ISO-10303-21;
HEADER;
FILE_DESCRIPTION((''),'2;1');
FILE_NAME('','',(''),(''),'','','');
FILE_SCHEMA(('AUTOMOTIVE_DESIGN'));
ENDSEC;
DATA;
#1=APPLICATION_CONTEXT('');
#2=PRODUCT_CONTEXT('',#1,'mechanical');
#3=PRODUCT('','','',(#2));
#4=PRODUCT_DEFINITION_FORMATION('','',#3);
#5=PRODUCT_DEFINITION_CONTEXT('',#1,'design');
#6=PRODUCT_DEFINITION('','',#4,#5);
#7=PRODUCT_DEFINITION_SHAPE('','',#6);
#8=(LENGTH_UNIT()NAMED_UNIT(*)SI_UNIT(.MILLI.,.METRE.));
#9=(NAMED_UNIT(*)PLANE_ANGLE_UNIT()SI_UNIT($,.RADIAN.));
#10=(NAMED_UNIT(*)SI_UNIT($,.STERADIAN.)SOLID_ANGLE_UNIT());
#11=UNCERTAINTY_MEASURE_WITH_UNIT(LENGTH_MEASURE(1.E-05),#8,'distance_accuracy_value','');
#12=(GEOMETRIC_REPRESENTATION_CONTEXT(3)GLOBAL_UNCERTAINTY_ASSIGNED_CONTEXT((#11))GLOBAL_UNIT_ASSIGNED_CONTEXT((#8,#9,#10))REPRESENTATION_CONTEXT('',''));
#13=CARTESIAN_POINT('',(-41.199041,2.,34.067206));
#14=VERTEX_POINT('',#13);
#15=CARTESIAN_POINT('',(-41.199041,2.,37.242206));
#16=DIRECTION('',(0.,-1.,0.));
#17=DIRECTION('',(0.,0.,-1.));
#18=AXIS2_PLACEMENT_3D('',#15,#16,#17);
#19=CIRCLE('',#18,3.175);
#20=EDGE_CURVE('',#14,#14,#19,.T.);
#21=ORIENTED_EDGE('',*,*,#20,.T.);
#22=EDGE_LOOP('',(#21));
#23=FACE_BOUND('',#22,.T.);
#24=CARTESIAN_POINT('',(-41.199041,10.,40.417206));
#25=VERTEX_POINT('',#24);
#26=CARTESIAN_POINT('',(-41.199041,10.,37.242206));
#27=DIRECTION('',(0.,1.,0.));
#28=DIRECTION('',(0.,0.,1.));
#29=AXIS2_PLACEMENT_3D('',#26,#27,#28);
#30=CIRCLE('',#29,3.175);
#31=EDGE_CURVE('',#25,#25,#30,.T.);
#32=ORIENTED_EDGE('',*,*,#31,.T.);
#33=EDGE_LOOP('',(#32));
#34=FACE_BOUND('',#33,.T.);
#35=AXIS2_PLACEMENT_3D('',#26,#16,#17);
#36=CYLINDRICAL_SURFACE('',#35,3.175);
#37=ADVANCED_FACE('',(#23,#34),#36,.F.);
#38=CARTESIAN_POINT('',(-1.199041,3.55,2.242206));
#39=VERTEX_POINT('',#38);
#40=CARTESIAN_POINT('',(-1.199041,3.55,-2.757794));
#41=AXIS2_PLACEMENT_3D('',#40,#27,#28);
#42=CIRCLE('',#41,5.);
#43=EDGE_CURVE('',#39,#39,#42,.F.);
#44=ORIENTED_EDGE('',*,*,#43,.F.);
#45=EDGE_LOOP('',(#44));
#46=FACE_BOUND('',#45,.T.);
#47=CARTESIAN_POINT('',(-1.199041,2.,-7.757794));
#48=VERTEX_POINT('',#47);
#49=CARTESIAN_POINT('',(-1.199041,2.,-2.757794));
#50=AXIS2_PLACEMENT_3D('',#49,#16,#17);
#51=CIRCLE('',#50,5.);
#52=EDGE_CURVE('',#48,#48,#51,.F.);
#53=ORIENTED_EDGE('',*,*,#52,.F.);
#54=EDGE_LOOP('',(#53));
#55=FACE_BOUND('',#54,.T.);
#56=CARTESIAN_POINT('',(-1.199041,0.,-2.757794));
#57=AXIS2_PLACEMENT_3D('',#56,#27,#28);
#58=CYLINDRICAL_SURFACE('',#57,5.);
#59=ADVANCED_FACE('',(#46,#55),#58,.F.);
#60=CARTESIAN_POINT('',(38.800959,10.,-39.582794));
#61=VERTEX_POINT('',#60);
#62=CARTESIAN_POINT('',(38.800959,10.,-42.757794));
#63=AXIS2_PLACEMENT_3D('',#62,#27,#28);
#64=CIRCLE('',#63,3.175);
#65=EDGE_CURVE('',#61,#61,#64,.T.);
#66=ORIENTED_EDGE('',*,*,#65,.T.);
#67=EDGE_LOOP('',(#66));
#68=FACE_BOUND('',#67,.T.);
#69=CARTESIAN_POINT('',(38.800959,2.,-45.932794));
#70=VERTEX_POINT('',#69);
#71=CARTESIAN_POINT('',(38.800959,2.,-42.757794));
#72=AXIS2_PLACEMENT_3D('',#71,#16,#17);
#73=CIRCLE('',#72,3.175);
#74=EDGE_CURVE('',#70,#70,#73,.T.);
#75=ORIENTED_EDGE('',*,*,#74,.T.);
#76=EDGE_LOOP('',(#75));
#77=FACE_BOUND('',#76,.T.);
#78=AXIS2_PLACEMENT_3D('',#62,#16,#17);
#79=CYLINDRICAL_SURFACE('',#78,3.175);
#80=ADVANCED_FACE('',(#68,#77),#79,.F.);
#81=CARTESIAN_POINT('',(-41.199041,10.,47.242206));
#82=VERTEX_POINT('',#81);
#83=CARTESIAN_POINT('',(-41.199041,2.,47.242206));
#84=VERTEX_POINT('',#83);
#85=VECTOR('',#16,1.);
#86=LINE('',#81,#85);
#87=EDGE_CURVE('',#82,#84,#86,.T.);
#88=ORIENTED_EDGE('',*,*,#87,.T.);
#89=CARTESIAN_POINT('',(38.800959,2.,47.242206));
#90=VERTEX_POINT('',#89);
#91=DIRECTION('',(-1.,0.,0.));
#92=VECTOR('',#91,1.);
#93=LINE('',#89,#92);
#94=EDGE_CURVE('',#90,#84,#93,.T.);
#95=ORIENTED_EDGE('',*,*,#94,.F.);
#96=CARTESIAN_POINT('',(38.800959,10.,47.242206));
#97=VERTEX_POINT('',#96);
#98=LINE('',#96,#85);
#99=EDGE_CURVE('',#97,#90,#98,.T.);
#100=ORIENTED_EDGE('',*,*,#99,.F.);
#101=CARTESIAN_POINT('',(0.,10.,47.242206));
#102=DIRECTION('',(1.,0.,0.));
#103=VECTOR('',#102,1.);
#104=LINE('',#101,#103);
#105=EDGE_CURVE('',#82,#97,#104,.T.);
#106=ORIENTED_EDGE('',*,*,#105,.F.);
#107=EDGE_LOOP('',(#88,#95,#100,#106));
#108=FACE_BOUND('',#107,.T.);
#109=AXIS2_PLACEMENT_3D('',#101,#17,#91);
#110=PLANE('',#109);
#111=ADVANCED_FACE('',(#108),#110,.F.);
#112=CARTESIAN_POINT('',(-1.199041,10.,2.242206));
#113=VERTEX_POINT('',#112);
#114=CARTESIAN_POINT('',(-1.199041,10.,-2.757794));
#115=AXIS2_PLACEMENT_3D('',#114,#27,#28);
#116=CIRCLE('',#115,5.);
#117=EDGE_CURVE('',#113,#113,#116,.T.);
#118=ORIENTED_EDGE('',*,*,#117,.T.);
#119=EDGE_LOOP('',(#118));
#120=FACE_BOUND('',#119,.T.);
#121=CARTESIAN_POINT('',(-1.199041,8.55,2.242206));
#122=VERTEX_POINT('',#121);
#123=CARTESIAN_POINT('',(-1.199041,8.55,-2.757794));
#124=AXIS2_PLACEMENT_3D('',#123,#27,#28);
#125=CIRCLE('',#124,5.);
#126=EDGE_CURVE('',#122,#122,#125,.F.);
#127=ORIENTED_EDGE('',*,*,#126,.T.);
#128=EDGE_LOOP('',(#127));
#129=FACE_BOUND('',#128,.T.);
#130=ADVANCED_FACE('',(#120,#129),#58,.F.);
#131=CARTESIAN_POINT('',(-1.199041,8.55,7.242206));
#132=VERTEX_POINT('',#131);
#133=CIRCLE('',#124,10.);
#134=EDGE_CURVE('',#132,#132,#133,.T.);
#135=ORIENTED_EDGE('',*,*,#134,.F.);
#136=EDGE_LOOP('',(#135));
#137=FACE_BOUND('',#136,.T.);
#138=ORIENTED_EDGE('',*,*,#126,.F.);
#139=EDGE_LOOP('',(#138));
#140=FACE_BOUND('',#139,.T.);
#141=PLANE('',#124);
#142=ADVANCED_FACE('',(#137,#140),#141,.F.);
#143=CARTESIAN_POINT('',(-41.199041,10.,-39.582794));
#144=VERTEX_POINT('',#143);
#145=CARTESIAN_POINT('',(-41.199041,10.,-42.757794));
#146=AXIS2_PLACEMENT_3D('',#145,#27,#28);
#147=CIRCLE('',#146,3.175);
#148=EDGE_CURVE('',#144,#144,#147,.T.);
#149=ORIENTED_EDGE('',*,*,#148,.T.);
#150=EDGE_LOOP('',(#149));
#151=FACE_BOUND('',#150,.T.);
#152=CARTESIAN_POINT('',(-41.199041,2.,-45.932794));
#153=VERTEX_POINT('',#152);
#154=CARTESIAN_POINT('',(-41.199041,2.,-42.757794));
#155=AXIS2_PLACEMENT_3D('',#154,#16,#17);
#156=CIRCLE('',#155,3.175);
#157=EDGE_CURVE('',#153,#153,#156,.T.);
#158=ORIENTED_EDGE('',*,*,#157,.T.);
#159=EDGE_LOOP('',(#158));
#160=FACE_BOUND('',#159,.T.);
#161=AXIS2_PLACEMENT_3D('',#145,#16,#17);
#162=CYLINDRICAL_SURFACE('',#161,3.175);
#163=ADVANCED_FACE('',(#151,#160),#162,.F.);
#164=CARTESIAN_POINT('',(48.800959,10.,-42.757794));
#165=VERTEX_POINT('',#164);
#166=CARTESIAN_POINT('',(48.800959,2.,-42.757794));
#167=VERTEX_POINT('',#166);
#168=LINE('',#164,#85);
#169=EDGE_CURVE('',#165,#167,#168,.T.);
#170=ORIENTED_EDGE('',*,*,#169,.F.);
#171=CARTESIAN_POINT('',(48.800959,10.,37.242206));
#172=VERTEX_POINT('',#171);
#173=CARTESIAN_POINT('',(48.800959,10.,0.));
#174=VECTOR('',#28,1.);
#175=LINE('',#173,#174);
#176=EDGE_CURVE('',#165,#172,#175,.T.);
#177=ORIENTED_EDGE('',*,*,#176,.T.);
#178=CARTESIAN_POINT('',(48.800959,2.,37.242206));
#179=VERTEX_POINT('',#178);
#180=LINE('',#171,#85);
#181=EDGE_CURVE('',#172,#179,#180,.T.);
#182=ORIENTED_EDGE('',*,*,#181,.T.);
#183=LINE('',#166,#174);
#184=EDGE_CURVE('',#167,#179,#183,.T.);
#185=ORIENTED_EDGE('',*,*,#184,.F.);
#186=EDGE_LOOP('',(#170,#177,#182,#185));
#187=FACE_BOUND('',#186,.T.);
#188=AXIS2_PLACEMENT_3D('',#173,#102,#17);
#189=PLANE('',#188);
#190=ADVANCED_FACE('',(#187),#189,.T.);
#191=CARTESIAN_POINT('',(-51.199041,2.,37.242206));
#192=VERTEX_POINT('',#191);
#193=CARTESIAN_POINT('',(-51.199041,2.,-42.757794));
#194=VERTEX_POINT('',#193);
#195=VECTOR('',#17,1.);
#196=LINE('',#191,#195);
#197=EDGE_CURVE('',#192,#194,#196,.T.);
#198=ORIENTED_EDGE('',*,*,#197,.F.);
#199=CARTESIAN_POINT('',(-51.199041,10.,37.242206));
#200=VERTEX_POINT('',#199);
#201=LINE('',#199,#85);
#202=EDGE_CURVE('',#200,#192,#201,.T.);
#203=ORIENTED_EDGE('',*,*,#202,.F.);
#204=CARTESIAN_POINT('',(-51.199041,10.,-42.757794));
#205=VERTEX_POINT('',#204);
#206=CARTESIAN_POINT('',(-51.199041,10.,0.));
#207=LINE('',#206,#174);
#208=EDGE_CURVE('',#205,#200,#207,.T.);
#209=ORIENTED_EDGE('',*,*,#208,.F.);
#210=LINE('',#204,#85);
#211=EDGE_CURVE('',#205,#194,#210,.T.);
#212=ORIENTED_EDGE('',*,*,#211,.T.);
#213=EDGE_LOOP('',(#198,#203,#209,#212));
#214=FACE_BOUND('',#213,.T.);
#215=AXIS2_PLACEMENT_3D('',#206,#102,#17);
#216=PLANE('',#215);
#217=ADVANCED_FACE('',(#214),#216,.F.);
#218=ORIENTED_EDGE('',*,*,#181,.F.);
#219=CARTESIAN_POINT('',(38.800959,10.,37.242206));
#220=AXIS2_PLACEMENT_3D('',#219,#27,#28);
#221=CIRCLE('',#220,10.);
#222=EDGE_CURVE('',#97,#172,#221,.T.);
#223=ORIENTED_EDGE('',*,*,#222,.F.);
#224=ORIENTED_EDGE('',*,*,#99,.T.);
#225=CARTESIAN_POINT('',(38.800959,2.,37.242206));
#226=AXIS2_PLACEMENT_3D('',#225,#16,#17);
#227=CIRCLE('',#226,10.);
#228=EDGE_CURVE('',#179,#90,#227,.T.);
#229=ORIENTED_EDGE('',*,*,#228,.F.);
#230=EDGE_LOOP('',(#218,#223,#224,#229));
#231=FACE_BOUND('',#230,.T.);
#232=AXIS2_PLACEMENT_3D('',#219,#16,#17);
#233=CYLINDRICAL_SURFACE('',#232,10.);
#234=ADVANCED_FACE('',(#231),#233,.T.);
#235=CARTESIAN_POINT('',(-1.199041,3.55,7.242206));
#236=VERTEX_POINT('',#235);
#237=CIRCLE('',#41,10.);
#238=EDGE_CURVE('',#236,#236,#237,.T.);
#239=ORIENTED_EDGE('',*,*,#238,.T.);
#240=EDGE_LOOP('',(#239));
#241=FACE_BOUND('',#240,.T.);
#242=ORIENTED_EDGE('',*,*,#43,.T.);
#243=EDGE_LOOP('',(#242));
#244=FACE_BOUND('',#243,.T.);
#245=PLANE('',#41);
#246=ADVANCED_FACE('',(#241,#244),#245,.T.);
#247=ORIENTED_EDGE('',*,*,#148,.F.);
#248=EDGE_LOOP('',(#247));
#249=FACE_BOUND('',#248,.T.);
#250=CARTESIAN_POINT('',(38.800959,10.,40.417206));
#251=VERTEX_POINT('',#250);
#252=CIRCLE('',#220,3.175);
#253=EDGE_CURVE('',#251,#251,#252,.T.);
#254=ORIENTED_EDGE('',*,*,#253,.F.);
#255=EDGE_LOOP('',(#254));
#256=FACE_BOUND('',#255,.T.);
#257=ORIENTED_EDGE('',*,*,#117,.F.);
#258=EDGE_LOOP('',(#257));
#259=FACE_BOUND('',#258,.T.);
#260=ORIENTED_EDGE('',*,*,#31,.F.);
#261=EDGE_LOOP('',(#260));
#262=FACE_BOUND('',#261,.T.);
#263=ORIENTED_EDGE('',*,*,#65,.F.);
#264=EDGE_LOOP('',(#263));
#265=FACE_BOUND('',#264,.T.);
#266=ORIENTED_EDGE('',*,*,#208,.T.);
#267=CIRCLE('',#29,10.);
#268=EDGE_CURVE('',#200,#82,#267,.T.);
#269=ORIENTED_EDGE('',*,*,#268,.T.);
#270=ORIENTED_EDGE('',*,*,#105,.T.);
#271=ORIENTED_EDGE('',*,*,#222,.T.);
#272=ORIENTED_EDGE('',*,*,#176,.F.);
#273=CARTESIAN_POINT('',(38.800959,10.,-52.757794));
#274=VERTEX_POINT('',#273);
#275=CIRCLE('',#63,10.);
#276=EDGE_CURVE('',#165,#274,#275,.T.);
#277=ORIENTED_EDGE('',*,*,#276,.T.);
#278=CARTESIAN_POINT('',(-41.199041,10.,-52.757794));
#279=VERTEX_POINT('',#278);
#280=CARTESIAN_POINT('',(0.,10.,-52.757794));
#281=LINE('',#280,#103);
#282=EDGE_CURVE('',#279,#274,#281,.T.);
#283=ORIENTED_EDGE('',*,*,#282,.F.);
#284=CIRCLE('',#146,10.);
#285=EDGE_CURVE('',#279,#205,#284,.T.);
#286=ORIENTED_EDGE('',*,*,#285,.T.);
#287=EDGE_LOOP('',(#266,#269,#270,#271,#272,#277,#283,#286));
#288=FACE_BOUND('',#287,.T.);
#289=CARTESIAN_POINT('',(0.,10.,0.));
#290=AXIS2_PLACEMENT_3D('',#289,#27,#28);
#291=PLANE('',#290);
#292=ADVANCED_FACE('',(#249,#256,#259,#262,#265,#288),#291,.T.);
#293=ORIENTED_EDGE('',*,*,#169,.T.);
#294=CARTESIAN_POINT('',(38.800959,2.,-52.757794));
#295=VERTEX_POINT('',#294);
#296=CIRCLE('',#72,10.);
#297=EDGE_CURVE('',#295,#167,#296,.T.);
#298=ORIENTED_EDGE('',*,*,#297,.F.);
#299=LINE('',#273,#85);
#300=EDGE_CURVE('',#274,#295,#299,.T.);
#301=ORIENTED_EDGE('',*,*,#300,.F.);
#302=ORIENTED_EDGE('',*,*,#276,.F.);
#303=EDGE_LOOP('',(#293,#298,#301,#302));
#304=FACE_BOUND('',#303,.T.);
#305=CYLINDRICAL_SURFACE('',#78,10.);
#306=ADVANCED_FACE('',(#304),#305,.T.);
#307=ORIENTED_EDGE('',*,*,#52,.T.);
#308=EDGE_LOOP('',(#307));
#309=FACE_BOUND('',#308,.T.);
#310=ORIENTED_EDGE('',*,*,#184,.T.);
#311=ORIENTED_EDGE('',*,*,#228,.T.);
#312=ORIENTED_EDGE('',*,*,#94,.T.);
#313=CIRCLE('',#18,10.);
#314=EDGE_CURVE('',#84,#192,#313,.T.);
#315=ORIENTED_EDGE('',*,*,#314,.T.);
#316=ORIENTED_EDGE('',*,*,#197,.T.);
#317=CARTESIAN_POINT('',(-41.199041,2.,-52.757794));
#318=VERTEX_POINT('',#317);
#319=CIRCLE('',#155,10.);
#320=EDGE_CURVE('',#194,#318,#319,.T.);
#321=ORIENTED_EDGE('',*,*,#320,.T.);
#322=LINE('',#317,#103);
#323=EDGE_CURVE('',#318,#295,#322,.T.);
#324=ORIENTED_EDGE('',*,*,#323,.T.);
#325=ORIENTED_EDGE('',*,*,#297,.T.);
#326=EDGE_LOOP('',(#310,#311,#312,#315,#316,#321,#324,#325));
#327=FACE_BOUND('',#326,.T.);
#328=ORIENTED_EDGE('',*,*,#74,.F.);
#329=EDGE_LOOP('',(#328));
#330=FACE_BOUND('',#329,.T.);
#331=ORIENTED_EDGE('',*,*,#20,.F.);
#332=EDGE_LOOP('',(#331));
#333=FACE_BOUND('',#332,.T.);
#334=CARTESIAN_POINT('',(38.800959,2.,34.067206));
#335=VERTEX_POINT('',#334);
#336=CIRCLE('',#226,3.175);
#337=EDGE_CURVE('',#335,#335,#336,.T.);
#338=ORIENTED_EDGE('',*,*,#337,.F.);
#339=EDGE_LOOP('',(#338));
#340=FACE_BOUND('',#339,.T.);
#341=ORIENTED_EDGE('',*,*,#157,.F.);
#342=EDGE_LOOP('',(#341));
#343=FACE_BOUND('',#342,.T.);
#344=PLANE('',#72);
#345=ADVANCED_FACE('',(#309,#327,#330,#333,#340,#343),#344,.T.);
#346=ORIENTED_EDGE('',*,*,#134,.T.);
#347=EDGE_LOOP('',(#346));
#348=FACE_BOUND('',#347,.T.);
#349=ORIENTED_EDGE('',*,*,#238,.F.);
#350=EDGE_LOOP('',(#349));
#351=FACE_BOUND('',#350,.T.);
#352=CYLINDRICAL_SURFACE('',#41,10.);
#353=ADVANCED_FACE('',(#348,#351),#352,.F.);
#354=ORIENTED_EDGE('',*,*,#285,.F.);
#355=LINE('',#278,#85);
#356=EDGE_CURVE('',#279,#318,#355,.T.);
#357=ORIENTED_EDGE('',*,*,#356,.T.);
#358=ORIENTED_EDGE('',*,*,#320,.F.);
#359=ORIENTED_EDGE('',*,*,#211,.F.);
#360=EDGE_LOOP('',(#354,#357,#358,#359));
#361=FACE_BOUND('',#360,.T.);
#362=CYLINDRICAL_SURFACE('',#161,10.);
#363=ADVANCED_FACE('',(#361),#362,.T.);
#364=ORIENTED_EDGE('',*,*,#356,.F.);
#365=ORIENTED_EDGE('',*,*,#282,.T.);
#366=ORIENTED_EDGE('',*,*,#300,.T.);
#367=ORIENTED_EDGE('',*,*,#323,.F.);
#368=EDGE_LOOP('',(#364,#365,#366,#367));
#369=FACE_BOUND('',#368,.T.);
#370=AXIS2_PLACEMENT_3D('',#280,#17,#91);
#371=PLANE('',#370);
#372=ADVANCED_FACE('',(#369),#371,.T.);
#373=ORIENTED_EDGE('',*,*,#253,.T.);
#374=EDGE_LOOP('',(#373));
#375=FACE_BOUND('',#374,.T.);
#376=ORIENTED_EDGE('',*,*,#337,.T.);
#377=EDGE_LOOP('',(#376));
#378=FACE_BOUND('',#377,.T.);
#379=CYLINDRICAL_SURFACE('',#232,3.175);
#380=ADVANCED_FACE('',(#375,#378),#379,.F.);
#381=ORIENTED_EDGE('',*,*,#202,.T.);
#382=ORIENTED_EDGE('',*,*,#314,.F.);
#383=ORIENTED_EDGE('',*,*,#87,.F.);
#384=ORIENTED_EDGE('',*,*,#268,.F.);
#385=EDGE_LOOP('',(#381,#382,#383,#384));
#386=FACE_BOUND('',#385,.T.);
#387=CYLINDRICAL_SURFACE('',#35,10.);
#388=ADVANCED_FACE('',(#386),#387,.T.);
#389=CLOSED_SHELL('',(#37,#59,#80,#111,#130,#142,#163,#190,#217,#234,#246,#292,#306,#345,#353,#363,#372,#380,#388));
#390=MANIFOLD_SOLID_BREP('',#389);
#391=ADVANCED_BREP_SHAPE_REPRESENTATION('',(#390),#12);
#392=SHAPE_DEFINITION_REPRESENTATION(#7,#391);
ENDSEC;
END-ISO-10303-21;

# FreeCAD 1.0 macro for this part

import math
import FreeCAD as App
import Part
import Sketcher
from FreeCAD import Vector

doc = App.newDocument("Part")
body = doc.addObject("PartDesign::Body", "Body")

sketch1 = body.newObject("Sketcher::SketchObject", "Sketch")
sketch1.AttachmentSupport = (doc.getObject("XZ_Plane"), [""])
sketch1.MapMode = "FlatFace"
sketch1.addGeometry([
    Part.LineSegment(Vector(38.8, -52.8, 0), Vector(-41.2, -52.8, 0)),
    Part.ArcOfCircle(Part.Circle(Vector(-41.2, -42.8, 0), Vector(0, 0, 1), 10), math.radians(180), math.radians(270)),
    Part.LineSegment(Vector(-51.2, -42.8, 0), Vector(-51.2, 37.2, 0)),
    Part.ArcOfCircle(Part.Circle(Vector(-41.2, 37.2, 0), Vector(0, 0, 1), 10), math.radians(90), math.radians(180)),
    Part.LineSegment(Vector(-41.2, 47.2, 0), Vector(38.8, 47.2, 0)),
    Part.ArcOfCircle(Part.Circle(Vector(38.8, 37.2, 0), Vector(0, 0, 1), 10), math.radians(0), math.radians(90)),
    Part.LineSegment(Vector(48.8, 37.2, 0), Vector(48.8, -42.8, 0)),
    Part.ArcOfCircle(Part.Circle(Vector(38.8, -42.8, 0), Vector(0, 0, 1), 10), math.radians(-90), math.radians(0)),
    Part.Circle(Vector(38.8, 37.2, 0), Vector(0, 0, 1), 3.2),
    Part.Circle(Vector(0, 0, 0), Vector(0, 0, 1), 12.7),
    Part.Circle(Vector(-41.2, 37.2, 0), Vector(0, 0, 1), 3.2),
    Part.Circle(Vector(38.8, -42.8, 0), Vector(0, 0, 1), 3.2),
    Part.Circle(Vector(-41.2, -42.8, 0), Vector(0, 0, 1), 3.2),
], False)
sketch1.addConstraint([
    Sketcher.Constraint("Tangent", 0, 2, 1, 2),
    Sketcher.Constraint("Tangent", 1, 1, 2, 1),
    Sketcher.Constraint("Tangent", 2, 2, 3, 2),
    Sketcher.Constraint("Tangent", 3, 1, 4, 1),
    Sketcher.Constraint("Tangent", 4, 2, 5, 2),
    Sketcher.Constraint("Tangent", 5, 1, 6, 1),
    Sketcher.Constraint("Tangent", 6, 2, 7, 2),
    Sketcher.Constraint("Tangent", 7, 1, 0, 1),
    Sketcher.Constraint("Horizontal", 0),
    Sketcher.Constraint("Vertical", 2),
    Sketcher.Constraint("Horizontal", 4),
    Sketcher.Constraint("Vertical", 6),
    Sketcher.Constraint("Coincident", 9, 3, -1, 1),
    Sketcher.Constraint("Coincident", 8, 3, 5, 3),
    Sketcher.Constraint("Coincident", 10, 3, 3, 3),
    Sketcher.Constraint("Coincident", 11, 3, 7, 3),
    Sketcher.Constraint("Coincident", 12, 3, 1, 3),
    Sketcher.Constraint("Equal", 1, 3),
    Sketcher.Constraint("Equal", 3, 5),
    Sketcher.Constraint("Equal", 5, 7),
    Sketcher.Constraint("Equal", 8, 10),
    Sketcher.Constraint("Equal", 10, 11),
    Sketcher.Constraint("Equal", 11, 12),
    Sketcher.Constraint("Equal", 4, 2),
    Sketcher.Constraint("Radius", 1, 10.0),
    Sketcher.Constraint("Diameter", 9, 25.4),
    Sketcher.Constraint("Diameter", 8, 6.35),
    Sketcher.Constraint("DistanceX", 0, 2, 0, 1, 80.0),
    Sketcher.Constraint("DistanceX", 1, 3, -1, 1, 41.199041),
    Sketcher.Constraint("DistanceY", 1, 3, -1, 1, 42.757794),
])
pad1 = body.newObject("PartDesign::Pad", "Pad")
pad1.Profile = sketch1
pad1.Length = 10
pad1.Reversed = True

sketch2 = body.newObject("Sketcher::SketchObject", "Sketch001")
sketch2.AttachmentSupport = (doc.getObject("XZ_Plane"), [""])
sketch2.MapMode = "FlatFace"
sketch2.addGeometry([
    Part.Circle(Vector(0, 0, 0), Vector(0, 0, 1), 13),
    Part.Circle(Vector(0, 0, 0), Vector(0, 0, 1), 6),
], False)
sketch2.addConstraint([
    Sketcher.Constraint("Coincident", 0, 3, -1, 1),
    Sketcher.Constraint("Coincident", 1, 3, -1, 1),
    Sketcher.Constraint("Diameter", 0, 25.4),
    Sketcher.Constraint("Diameter", 1, 12.7),
])
pad2 = body.newObject("PartDesign::Pad", "Pad001")
pad2.Profile = sketch2
pad2.Length = 2.5
pad2.Reversed = True

sketch3 = body.newObject("Sketcher::SketchObject", "Sketch002")
sketch3.AttachmentSupport = (doc.getObject("XZ_Plane"), [""])
sketch3.MapMode = "FlatFace"
sketch3.AttachmentOffset = App.Placement(Vector(0, 0, -10), App.Rotation())
sketch3.addGeometry(Part.Circle(Vector(0, 0, 0), Vector(0, 0, 1), 13), False)
sketch3.addConstraint([
    Sketcher.Constraint("Coincident", 0, 3, -1, 1),
    Sketcher.Constraint("Diameter", 0, 25.4),
])
pad3 = body.newObject("PartDesign::Pad", "Pad002")
pad3.Profile = sketch3
pad3.Length = 10

sketch4 = body.newObject("Sketcher::SketchObject", "Sketch003")
sketch4.AttachmentSupport = (doc.getObject("XZ_Plane"), [""])
sketch4.MapMode = "FlatFace"
sketch4.AttachmentOffset = App.Placement(Vector(0, 0, -10), App.Rotation())
sketch4.addGeometry(Part.Circle(Vector(-1, -3, 0), Vector(0, 0, 1), 5), False)
sketch4.addConstraint([
    Sketcher.Constraint("Diameter", 0, 10.0),
    Sketcher.Constraint("DistanceX", 0, 3, -1, 1, 1.199041),
    Sketcher.Constraint("DistanceY", 0, 3, -1, 1, 2.757794),
])
pocket1 = body.newObject("PartDesign::Pocket", "Pocket")
pocket1.Profile = sketch4
pocket1.Length = 10
pocket1.Reversed = True

sketch5 = body.newObject("Sketcher::SketchObject", "Sketch004")
sketch5.AttachmentSupport = (doc.getObject("XZ_Plane"), [""])
sketch5.MapMode = "FlatFace"
sketch5.AttachmentOffset = App.Placement(Vector(0, 0, -8.55), App.Rotation())
sketch5.addGeometry(Part.Circle(Vector(-1, -3, 0), Vector(0, 0, 1), 10), False)
sketch5.addConstraint([
    Sketcher.Constraint("Diameter", 0, 20.0),
    Sketcher.Constraint("DistanceX", 0, 3, -1, 1, 1.199041),
    Sketcher.Constraint("DistanceY", 0, 3, -1, 1, 2.757794),
])
pocket2 = body.newObject("PartDesign::Pocket", "Pocket001")
pocket2.Profile = sketch5
pocket2.Length = 5
pocket2.Reversed = True

sketch6 = body.newObject("Sketcher::SketchObject", "Sketch005")
sketch6.AttachmentSupport = (doc.getObject("XZ_Plane"), [""])
sketch6.MapMode = "FlatFace"
sketch6.addGeometry([
    Part.LineSegment(Vector(49, -43, 0), Vector(49, 37, 0)),
    Part.ArcOfCircle(Part.Circle(Vector(39, 37, 0), Vector(0, 0, 1), 10), math.radians(0), math.radians(90)),
    Part.LineSegment(Vector(39, 47, 0), Vector(-41, 47, 0)),
    Part.ArcOfCircle(Part.Circle(Vector(-41, 37, 0), Vector(0, 0, 1), 10), math.radians(90), math.radians(180)),
    Part.LineSegment(Vector(-51, 37, 0), Vector(-51, -43, 0)),
    Part.ArcOfCircle(Part.Circle(Vector(-41, -43, 0), Vector(0, 0, 1), 10), math.radians(180), math.radians(270)),
    Part.LineSegment(Vector(-41, -53, 0), Vector(39, -53, 0)),
    Part.ArcOfCircle(Part.Circle(Vector(39, -43, 0), Vector(0, 0, 1), 10), math.radians(-90), math.radians(0)),
], False)
sketch6.addConstraint([
    Sketcher.Constraint("Tangent", 0, 2, 1, 1),
    Sketcher.Constraint("Tangent", 1, 2, 2, 1),
    Sketcher.Constraint("Tangent", 2, 2, 3, 1),
    Sketcher.Constraint("Tangent", 3, 2, 4, 1),
    Sketcher.Constraint("Tangent", 4, 2, 5, 1),
    Sketcher.Constraint("Tangent", 5, 2, 6, 1),
    Sketcher.Constraint("Tangent", 6, 2, 7, 1),
    Sketcher.Constraint("Tangent", 7, 2, 0, 1),
    Sketcher.Constraint("Vertical", 0),
    Sketcher.Constraint("Horizontal", 2),
    Sketcher.Constraint("Vertical", 4),
    Sketcher.Constraint("Horizontal", 6),
    Sketcher.Constraint("Equal", 1, 3),
    Sketcher.Constraint("Equal", 3, 5),
    Sketcher.Constraint("Equal", 5, 7),
    Sketcher.Constraint("Equal", 6, 0),
    Sketcher.Constraint("Radius", 1, 10.0),
    Sketcher.Constraint("DistanceX", 2, 2, 2, 1, 80.0),
    Sketcher.Constraint("DistanceX", -1, 1, 1, 3, 38.800959),
    Sketcher.Constraint("DistanceY", -1, 1, 1, 3, 37.242206),
])
pocket3 = body.newObject("PartDesign::Pocket", "Pocket002")
pocket3.Profile = sketch6
pocket3.Length = 2

doc.recompute()
